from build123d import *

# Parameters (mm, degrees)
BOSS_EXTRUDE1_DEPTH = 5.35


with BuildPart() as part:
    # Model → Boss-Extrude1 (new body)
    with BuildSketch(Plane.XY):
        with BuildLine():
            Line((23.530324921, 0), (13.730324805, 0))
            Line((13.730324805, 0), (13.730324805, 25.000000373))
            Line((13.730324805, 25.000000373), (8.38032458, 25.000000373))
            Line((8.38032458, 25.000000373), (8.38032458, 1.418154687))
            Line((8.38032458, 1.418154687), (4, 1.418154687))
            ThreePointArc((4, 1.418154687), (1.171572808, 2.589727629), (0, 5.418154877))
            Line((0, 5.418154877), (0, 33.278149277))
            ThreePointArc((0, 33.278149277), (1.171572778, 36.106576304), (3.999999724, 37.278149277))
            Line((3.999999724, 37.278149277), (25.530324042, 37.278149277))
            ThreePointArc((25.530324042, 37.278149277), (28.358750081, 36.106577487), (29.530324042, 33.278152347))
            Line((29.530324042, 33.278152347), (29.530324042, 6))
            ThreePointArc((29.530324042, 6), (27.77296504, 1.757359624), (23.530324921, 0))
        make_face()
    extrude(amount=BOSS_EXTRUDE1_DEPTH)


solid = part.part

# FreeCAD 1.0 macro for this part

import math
import FreeCAD as App
import Part
import Sketcher

V = App.Vector

doc = App.newDocument("Part")
params = doc.addObject("Spreadsheet::Sheet", "Params")
for row, (alias, value) in enumerate([
    ("sketch1_radius", "6 mm"),
    ("sketch1_radius2", "4 mm"),
    ("sketch1_height", "25 mm"),
    ("sketch1_width", "9.8 mm"),
    ("sketch1_width2", "5.35 mm"),
    ("pad1_length", "5.35 mm"),
], start=1):
    params.set(f"A{row}", alias)
    params.set(f"B{row}", "=" + value)
    params.setAlias(f"B{row}", alias)

body = doc.addObject("PartDesign::Body", "Body")

# Sketch on XY plane
sketch1 = body.newObject("Sketcher::SketchObject", "Sketch")
sketch1.AttachmentSupport = (doc.getObject("XY_Plane"), [""])
sketch1.MapMode = "FlatFace"
sketch1.addGeometry([
    Part.LineSegment(V(13.730325, 0, 0), V(23.530325, 0, 0)),  # 0
    Part.ArcOfCircle(Part.Circle(V(23.530324, 6, 0), V(0, 0, 1), 6), math.radians(-89.999992), math.radians(0)),  # 1
    Part.LineSegment(V(29.530324, 6, 0), V(29.530324, 33.278152, 0)),  # 2
    Part.ArcOfCircle(Part.Circle(V(25.530324, 33.278149, 0), V(0, 0, 1), 4), math.radians(0.000044), math.radians(90)),  # 3
    Part.LineSegment(V(25.530324, 37.278149, 0), V(4, 37.278149, 0)),  # 4
    Part.ArcOfCircle(Part.Circle(V(4, 33.278149, 0), V(0, 0, 1), 4), math.radians(90.000004), math.radians(180)),  # 5
    Part.LineSegment(V(0, 33.278149, 0), V(0, 5.418155, 0)),  # 6
    Part.ArcOfCircle(Part.Circle(V(4, 5.418155, 0), V(0, 0, 1), 4), math.radians(179.999997), math.radians(270)),  # 7
    Part.LineSegment(V(4, 1.418155, 0), V(8.380325, 1.418155, 0)),  # 8
    Part.LineSegment(V(8.380325, 1.418155, 0), V(8.380325, 25, 0)),  # 9
    Part.LineSegment(V(8.380325, 25, 0), V(13.730325, 25, 0)),  # 10
    Part.LineSegment(V(13.730325, 25, 0), V(13.730325, 0, 0)),  # 11
], False)
sketch1.addConstraint([
    Sketcher.Constraint("Tangent", 0, 2, 1, 1),
    Sketcher.Constraint("Tangent", 1, 2, 2, 1),
    Sketcher.Constraint("Tangent", 2, 2, 3, 1),
    Sketcher.Constraint("Tangent", 3, 2, 4, 1),
    Sketcher.Constraint("Tangent", 4, 2, 5, 1),
    Sketcher.Constraint("Tangent", 5, 2, 6, 1),
    Sketcher.Constraint("Tangent", 6, 2, 7, 1),
    Sketcher.Constraint("Tangent", 7, 2, 8, 1),
    Sketcher.Constraint("Coincident", 8, 2, 9, 1),
    Sketcher.Constraint("Coincident", 9, 2, 10, 1),
    Sketcher.Constraint("Coincident", 10, 2, 11, 1),
    Sketcher.Constraint("Coincident", 11, 2, 0, 1),
    Sketcher.Constraint("Horizontal", 0),
    Sketcher.Constraint("Vertical", 2),
    Sketcher.Constraint("Horizontal", 4),
    Sketcher.Constraint("Vertical", 6),
    Sketcher.Constraint("Horizontal", 8),
    Sketcher.Constraint("Vertical", 9),
    Sketcher.Constraint("Horizontal", 10),
    Sketcher.Constraint("Vertical", 11),
    Sketcher.Constraint("Equal", 3, 5),
    Sketcher.Constraint("Equal", 5, 7),
    Sketcher.Constraint("PointOnObject", 0, 2, -1),
    Sketcher.Constraint("PointOnObject", 5, 2, -2),
    Sketcher.Constraint("Radius", 1, 6.0),
    Sketcher.Constraint("Radius", 3, 4.0),
    Sketcher.Constraint("DistanceY", 11, 2, 11, 1, 25.0),
    Sketcher.Constraint("DistanceX", 0, 1, 0, 2, 9.8),
    Sketcher.Constraint("DistanceX", 10, 1, 10, 2, 5.35),
    Sketcher.Constraint("DistanceX", 4, 2, 4, 1, 21.530324),
    Sketcher.Constraint("DistanceY", 2, 1, 2, 2, 27.278152),
    Sketcher.Constraint("DistanceY", 6, 2, 6, 1, 27.859994),
])
sketch1.setExpression("Constraints[24]", "Params.sketch1_radius")
sketch1.setExpression("Constraints[25]", "Params.sketch1_radius2")
sketch1.setExpression("Constraints[26]", "Params.sketch1_height")
sketch1.setExpression("Constraints[27]", "Params.sketch1_width")
sketch1.setExpression("Constraints[28]", "Params.sketch1_width2")
pad1 = body.newObject("PartDesign::Pad", "Pad")
pad1.Profile = sketch1
pad1.setExpression("Length", "Params.pad1_length")

doc.recompute()
